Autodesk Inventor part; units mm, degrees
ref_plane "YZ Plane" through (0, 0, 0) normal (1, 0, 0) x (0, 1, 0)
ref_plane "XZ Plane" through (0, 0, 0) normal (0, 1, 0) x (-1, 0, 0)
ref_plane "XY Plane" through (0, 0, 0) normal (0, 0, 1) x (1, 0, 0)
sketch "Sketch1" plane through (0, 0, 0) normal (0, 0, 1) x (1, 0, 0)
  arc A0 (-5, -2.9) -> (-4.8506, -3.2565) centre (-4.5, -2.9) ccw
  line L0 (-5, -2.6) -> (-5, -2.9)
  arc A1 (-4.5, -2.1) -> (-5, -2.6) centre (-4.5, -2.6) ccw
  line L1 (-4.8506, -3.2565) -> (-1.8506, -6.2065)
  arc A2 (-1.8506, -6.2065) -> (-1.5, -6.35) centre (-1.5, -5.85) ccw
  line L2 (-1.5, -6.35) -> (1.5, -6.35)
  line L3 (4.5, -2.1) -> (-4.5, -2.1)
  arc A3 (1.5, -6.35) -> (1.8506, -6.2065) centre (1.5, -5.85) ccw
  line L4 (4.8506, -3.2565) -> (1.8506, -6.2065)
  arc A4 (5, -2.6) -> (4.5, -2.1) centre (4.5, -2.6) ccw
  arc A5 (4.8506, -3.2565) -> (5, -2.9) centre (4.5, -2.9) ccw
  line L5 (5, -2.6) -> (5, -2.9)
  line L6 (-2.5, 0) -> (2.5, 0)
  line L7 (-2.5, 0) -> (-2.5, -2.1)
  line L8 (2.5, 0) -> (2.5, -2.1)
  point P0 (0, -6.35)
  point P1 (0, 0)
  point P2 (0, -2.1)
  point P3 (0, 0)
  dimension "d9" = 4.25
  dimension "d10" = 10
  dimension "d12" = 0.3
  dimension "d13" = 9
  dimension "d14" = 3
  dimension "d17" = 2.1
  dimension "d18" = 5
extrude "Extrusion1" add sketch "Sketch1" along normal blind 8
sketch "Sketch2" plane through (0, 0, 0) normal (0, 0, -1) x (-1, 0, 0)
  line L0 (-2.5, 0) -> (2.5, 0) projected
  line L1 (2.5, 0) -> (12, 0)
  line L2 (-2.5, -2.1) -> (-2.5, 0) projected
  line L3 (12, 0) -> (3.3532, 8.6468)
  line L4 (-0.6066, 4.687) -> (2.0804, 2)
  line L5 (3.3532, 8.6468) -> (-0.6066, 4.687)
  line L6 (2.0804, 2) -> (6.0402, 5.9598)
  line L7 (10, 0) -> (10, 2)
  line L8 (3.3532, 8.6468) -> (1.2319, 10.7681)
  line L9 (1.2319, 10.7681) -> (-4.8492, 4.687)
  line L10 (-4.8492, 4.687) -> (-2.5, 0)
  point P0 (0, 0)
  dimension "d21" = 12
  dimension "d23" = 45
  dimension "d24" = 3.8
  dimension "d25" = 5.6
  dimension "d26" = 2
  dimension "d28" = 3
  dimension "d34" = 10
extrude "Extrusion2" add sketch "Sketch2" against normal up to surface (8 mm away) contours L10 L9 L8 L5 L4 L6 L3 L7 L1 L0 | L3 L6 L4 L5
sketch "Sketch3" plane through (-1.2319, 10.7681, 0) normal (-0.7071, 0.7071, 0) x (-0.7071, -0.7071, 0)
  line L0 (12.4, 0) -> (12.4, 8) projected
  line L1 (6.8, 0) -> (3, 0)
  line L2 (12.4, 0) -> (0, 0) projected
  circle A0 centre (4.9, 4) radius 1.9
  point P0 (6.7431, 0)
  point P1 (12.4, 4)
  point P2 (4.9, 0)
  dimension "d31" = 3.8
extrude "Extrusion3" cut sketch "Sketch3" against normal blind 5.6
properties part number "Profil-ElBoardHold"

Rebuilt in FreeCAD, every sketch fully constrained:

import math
import FreeCAD as App
import Part
import Sketcher
from FreeCAD import Vector
Q = App.Units.Quantity


def add_polygon(sketch, points):
    """Adds a closed chain of lines whose ends are joined by coincident constraints."""
    first, n = sketch.GeometryCount, len(points)
    for a, b in zip(points, points[1:] + points[:1]):
        sketch.addGeometry(Part.LineSegment(App.Vector(*a, 0), App.Vector(*b, 0)), False)
    for i in range(n):
        sketch.addConstraint(Sketcher.Constraint("Coincident", first + i, 2, first + (i + 1) % n, 1))

doc = App.newDocument("Part")
params = doc.addObject("Spreadsheet::Sheet", "Params")
for row, (alias, value) in enumerate([
    ("sketch1_width", "3 mm"),
    ("sketch1_width2", "5 mm"),
    ("sketch1_height", "0.3 mm"),
    ("sketch1_height2", "2.1 mm"),
    ("pad1_length", "8 mm"),
    ("sketch2_height", "2 mm"),
    ("sketch2_width", "12.5 mm"),
    ("sketch2_length", "12.4 mm"),
    ("sketch2_length2", "8.6 mm"),
    ("pad2_length", "8 mm"),
    ("sketch3_diameter", "3.8 mm"),
    ("pocket1_length", "5.6 mm"),
], start=1):
    params.set(f"A{row}", alias)
    params.set(f"B{row}", "=" + value)
    params.setAlias(f"B{row}", alias)

body = doc.addObject("PartDesign::Body", "Body")

# Sketch on XY plane
sketch1 = body.newObject("Sketcher::SketchObject", "Sketch")
sketch1.AttachmentSupport = (doc.getObject("XY_Plane"), [""])
sketch1.MapMode = "FlatFace"
sketch1.addGeometry([
    Part.LineSegment(Vector(-5, -2.6, 0), Vector(-5, -2.9, 0)),  # 0
    Part.ArcOfCircle(Part.Circle(Vector(-4.5, -2.9, 0), Vector(0, 0, 1), 0.5), math.radians(180), math.radians(225.478061)),  # 1
    Part.LineSegment(Vector(-4.8506, -3.2565, 0), Vector(-1.8506, -6.2065, 0)),  # 2
    Part.ArcOfCircle(Part.Circle(Vector(-1.5, -5.85, 0), Vector(0, 0, 1), 0.500013), math.radians(-134.521939), math.radians(-90)),  # 3
    Part.LineSegment(Vector(-1.5, -6.35, 0), Vector(1.5, -6.35, 0)),  # 4
    Part.ArcOfCircle(Part.Circle(Vector(1.5, -5.85, 0), Vector(0, 0, 1), 0.5), math.radians(-90), math.radians(-45.478061)),  # 5
    Part.LineSegment(Vector(1.8506, -6.2065, 0), Vector(4.8506, -3.2565, 0)),  # 6
    Part.ArcOfCircle(Part.Circle(Vector(4.5, -2.9, 0), Vector(0, 0, 1), 0.500013), math.radians(-45.478061), math.radians(0)),  # 7
    Part.LineSegment(Vector(5, -2.9, 0), Vector(5, -2.6, 0)),  # 8
    Part.ArcOfCircle(Part.Circle(Vector(4.5, -2.6, 0), Vector(0, 0, 1), 0.5), math.radians(0), math.radians(90)),  # 9
    Part.LineSegment(Vector(4.5, -2.1, 0), Vector(2.5, -2.1, 0)),  # 10
    Part.LineSegment(Vector(2.5, -2.1, 0), Vector(2.5, 0, 0)),  # 11
    Part.LineSegment(Vector(2.5, 0, 0), Vector(-2.5, 0, 0)),  # 12
    Part.LineSegment(Vector(-2.5, 0, 0), Vector(-2.5, -2.1, 0)),  # 13
    Part.LineSegment(Vector(-2.5, -2.1, 0), Vector(-4.5, -2.1, 0)),  # 14
    Part.ArcOfCircle(Part.Circle(Vector(-4.5, -2.6, 0), Vector(0, 0, 1), 0.5), math.radians(90), math.radians(180)),  # 15
], False)
sketch1.addConstraint([
    Sketcher.Constraint("Tangent", 0, 2, 1, 1),
    Sketcher.Constraint("Tangent", 1, 2, 2, 1),
    Sketcher.Constraint("Tangent", 2, 2, 3, 1),
    Sketcher.Constraint("Tangent", 3, 2, 4, 1),
    Sketcher.Constraint("Tangent", 4, 2, 5, 1),
    Sketcher.Constraint("Tangent", 5, 2, 6, 1),
    Sketcher.Constraint("Tangent", 6, 2, 7, 1),
    Sketcher.Constraint("Tangent", 7, 2, 8, 1),
    Sketcher.Constraint("Tangent", 8, 2, 9, 1),
    Sketcher.Constraint("Tangent", 9, 2, 10, 1),
    Sketcher.Constraint("Coincident", 10, 2, 11, 1),
    Sketcher.Constraint("Coincident", 11, 2, 12, 1),
    Sketcher.Constraint("Coincident", 12, 2, 13, 1),
    Sketcher.Constraint("Coincident", 13, 2, 14, 1),
    Sketcher.Constraint("Tangent", 14, 2, 15, 1),
    Sketcher.Constraint("Tangent", 15, 2, 0, 1),
    Sketcher.Constraint("Vertical", 0),
    Sketcher.Constraint("Horizontal", 4),
    Sketcher.Constraint("Vertical", 8),
    Sketcher.Constraint("Horizontal", 10),
    Sketcher.Constraint("Vertical", 11),
    Sketcher.Constraint("Horizontal", 12),
    Sketcher.Constraint("Vertical", 13),
    Sketcher.Constraint("Horizontal", 14),
    Sketcher.Constraint("Equal", 1, 3),
    Sketcher.Constraint("Equal", 3, 5),
    Sketcher.Constraint("Equal", 5, 7),
    Sketcher.Constraint("Equal", 7, 9),
    Sketcher.Constraint("Equal", 9, 15),
    Sketcher.Constraint("Symmetric", 11, 2, 12, 2, -1, 1),
    Sketcher.Constraint("Symmetric", 1, 3, 7, 3, -2),
    Sketcher.Constraint("Horizontal", 9, 3, 15, 3),
    Sketcher.Constraint("Horizontal", 2, 2, 5, 2),
    Sketcher.Constraint("DistanceX", 4, 1, 4, 2, Q("3 mm")),
    Sketcher.Constraint("DistanceX", 12, 2, 12, 1, Q("5 mm")),
    Sketcher.Constraint("DistanceY", 0, 2, 0, 1, Q("0.3 mm")),
    Sketcher.Constraint("DistanceY", 11, 1, 11, 2, Q("2.1 mm")),
    Sketcher.Constraint("DistanceX", 0, 2, -1, 1, Q("5 mm")),
    Sketcher.Constraint("DistanceX", 1, 3, 3, 3, Q("3 mm")),
    Sketcher.Constraint("DistanceY", 3, 3, -1, 1, Q("5.85 mm")),
])
sketch1.setExpression("Constraints[33]", "Params.sketch1_width")
sketch1.setExpression("Constraints[34]", "Params.sketch1_width2")
sketch1.setExpression("Constraints[35]", "Params.sketch1_height")
sketch1.setExpression("Constraints[36]", "Params.sketch1_height2")
pad1 = body.newObject("PartDesign::Pad", "Pad")
pad1.Profile = sketch1
pad1.setExpression("Length", "Params.pad1_length")

# Sketch on XY plane
sketch2 = body.newObject("Sketcher::SketchObject", "Sketch001")
sketch2.AttachmentSupport = (doc.getObject("XY_Plane"), [""])
sketch2.MapMode = "FlatFace"
add_polygon(sketch2, [(4.8492, 4.687), (2.5, 0), (-10, 0), (-10, 2), (-1.2319, 10.7681)])  # lines 0-4
sketch2.addConstraint([
    Sketcher.Constraint("Horizontal", 1),
    Sketcher.Constraint("Vertical", 2),
    Sketcher.Constraint("PointOnObject", 0, 2, -1),
    Sketcher.Constraint("Perpendicular", 3, 4),
    Sketcher.Constraint("DistanceY", 2, 1, 2, 2, Q("2 mm")),
    Sketcher.Constraint("Angle", 3, Q("45 deg")),
    Sketcher.Constraint("DistanceX", 1, 2, -1, 1, Q("10 mm")),
    Sketcher.Constraint("DistanceX", 1, 2, 1, 1, Q("12.5 mm")),
    Sketcher.Constraint("Distance", 3, Q("12.4 mm")),
    Sketcher.Constraint("Distance", 4, Q("8.6 mm")),
])
sketch2.setExpression("Constraints[9]", "Params.sketch2_height")
sketch2.setExpression("Constraints[12]", "Params.sketch2_width")
sketch2.setExpression("Constraints[13]", "Params.sketch2_length")
sketch2.setExpression("Constraints[14]", "Params.sketch2_length2")
pad2 = body.newObject("PartDesign::Pad", "Pad001")
pad2.Profile = sketch2
pad2.setExpression("Length", "Params.pad2_length")

# Sketch on an angled plane
sketch3 = body.newObject("Sketcher::SketchObject", "Sketch002")
sketch3.Placement = App.Placement(Vector(-1.2319, 10.7681, 0), App.Rotation(Vector(-0.707106781, -0.707106781, 0), Vector(0, 0, 0.999999999), Vector(-0.707106781, 0.707106781, 0), "ZXY"))
sketch3.addGeometry(Part.Circle(Vector(4.9, 4, 0), Vector(0, 0, 1), 1.9), False)
sketch3.addConstraint([
    Sketcher.Constraint("Diameter", 0, Q("3.8 mm")),
    Sketcher.Constraint("DistanceY", -1, 1, 0, 3, Q("4 mm")),
    Sketcher.Constraint("DistanceX", -1, 1, 0, 3, Q("4.9 mm")),
])
sketch3.setExpression("Constraints[0]", "Params.sketch3_diameter")
pocket1 = body.newObject("PartDesign::Pocket", "Pocket")
pocket1.Profile = sketch3
pocket1.setExpression("Length", "Params.pocket1_length")

doc.recompute()
